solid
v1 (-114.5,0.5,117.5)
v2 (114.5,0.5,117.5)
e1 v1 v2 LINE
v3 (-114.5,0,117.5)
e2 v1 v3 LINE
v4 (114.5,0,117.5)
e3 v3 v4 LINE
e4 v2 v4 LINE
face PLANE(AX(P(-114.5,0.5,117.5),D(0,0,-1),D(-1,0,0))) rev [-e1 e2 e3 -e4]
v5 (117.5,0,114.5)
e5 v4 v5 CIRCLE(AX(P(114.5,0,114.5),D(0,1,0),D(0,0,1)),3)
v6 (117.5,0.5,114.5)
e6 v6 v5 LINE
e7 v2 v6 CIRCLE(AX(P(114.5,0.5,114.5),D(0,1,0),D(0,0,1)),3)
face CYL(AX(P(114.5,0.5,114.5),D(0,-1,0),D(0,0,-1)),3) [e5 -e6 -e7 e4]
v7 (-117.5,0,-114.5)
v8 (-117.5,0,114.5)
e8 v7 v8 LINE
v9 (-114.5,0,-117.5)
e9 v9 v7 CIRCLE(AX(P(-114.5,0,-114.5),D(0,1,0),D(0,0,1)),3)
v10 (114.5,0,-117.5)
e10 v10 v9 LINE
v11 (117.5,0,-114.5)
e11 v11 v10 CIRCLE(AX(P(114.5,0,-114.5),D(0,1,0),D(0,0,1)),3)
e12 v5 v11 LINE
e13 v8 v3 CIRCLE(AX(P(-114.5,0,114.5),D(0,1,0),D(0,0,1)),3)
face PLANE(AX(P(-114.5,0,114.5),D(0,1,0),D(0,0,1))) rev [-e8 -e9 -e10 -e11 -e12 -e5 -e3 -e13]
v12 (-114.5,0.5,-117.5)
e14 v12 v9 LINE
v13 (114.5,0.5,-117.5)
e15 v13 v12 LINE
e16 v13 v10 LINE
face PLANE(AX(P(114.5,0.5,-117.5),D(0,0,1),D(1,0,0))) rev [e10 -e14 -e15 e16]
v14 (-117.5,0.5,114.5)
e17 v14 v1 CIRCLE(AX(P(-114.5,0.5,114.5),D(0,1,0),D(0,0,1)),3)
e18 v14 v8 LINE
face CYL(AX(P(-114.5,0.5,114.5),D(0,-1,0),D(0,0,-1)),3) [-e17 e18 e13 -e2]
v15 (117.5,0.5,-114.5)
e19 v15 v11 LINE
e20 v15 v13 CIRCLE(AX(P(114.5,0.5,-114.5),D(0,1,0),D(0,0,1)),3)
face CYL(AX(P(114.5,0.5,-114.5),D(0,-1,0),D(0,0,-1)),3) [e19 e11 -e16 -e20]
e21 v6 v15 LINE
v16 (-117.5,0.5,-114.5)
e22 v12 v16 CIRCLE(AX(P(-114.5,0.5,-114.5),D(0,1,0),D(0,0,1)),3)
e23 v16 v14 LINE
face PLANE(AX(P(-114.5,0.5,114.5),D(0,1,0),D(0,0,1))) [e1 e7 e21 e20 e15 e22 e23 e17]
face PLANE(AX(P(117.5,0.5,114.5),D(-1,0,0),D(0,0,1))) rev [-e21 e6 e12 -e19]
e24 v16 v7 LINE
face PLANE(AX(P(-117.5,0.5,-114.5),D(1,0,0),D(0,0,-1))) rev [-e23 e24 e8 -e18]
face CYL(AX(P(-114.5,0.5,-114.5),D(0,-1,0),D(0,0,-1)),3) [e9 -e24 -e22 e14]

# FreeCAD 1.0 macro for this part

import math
import FreeCAD as App
import Part
import Sketcher

V = App.Vector
Q = App.Units.Quantity

doc = App.newDocument("Part")
body = doc.addObject("PartDesign::Body", "Body")

# Sketch on XZ plane
sketch1 = doc.addObject("Sketcher::SketchObject", "Sketch")
body.addObject(sketch1)
sketch1.AttachmentSupport = (doc.XZ_Plane, [""])
sketch1.MapMode = "FlatFace"
sketch1.addGeometry(Part.LineSegment(V(-114.5, 117.5, 0), V(114.5, 117.5, 0)), False)
sketch1.addGeometry(Part.ArcOfCircle(Part.Circle(V(114.5, 114.5, 0), V(0, 0, 1), 3), math.radians(0), math.radians(90)), False)
sketch1.addGeometry(Part.LineSegment(V(117.5, 114.5, 0), V(117.5, -114.5, 0)), False)
sketch1.addGeometry(Part.ArcOfCircle(Part.Circle(V(114.5, -114.5, 0), V(0, 0, 1), 3), math.radians(-90), math.radians(0)), False)
sketch1.addGeometry(Part.LineSegment(V(114.5, -117.5, 0), V(-114.5, -117.5, 0)), False)
sketch1.addGeometry(Part.ArcOfCircle(Part.Circle(V(-114.5, -114.5, 0), V(0, 0, 1), 3), math.radians(180), math.radians(270)), False)
sketch1.addGeometry(Part.LineSegment(V(-117.5, -114.5, 0), V(-117.5, 114.5, 0)), False)
sketch1.addGeometry(Part.ArcOfCircle(Part.Circle(V(-114.5, 114.5, 0), V(0, 0, 1), 3), math.radians(90), math.radians(180)), False)
sketch1.addConstraint(Sketcher.Constraint("Tangent", 0, 2, 1, 2))
sketch1.addConstraint(Sketcher.Constraint("Tangent", 1, 1, 2, 1))
sketch1.addConstraint(Sketcher.Constraint("Tangent", 2, 2, 3, 2))
sketch1.addConstraint(Sketcher.Constraint("Tangent", 3, 1, 4, 1))
sketch1.addConstraint(Sketcher.Constraint("Tangent", 4, 2, 5, 2))
sketch1.addConstraint(Sketcher.Constraint("Tangent", 5, 1, 6, 1))
sketch1.addConstraint(Sketcher.Constraint("Tangent", 6, 2, 7, 2))
sketch1.addConstraint(Sketcher.Constraint("Tangent", 7, 1, 0, 1))
sketch1.addConstraint(Sketcher.Constraint("Horizontal", 0))
sketch1.addConstraint(Sketcher.Constraint("Vertical", 2))
sketch1.addConstraint(Sketcher.Constraint("Horizontal", 4))
sketch1.addConstraint(Sketcher.Constraint("Vertical", 6))
sketch1.addConstraint(Sketcher.Constraint("Equal", 1, 3))
sketch1.addConstraint(Sketcher.Constraint("Equal", 3, 5))
sketch1.addConstraint(Sketcher.Constraint("Equal", 5, 7))
sketch1.addConstraint(Sketcher.Constraint("Symmetric", 1, 3, 5, 3, -1, 1))
sketch1.addConstraint(Sketcher.Constraint("Equal", 4, 2))
sketch1.addConstraint(Sketcher.Constraint("Radius", 1, Q("3 mm")))
sketch1.addConstraint(Sketcher.Constraint("DistanceX", 0, 1, 0, 2, Q("229 mm")))
pad1 = doc.addObject("PartDesign::Pad", "Pad")
body.addObject(pad1)
pad1.Profile = sketch1
pad1.Length = 0.5
pad1.Reversed = True

doc.recompute()
